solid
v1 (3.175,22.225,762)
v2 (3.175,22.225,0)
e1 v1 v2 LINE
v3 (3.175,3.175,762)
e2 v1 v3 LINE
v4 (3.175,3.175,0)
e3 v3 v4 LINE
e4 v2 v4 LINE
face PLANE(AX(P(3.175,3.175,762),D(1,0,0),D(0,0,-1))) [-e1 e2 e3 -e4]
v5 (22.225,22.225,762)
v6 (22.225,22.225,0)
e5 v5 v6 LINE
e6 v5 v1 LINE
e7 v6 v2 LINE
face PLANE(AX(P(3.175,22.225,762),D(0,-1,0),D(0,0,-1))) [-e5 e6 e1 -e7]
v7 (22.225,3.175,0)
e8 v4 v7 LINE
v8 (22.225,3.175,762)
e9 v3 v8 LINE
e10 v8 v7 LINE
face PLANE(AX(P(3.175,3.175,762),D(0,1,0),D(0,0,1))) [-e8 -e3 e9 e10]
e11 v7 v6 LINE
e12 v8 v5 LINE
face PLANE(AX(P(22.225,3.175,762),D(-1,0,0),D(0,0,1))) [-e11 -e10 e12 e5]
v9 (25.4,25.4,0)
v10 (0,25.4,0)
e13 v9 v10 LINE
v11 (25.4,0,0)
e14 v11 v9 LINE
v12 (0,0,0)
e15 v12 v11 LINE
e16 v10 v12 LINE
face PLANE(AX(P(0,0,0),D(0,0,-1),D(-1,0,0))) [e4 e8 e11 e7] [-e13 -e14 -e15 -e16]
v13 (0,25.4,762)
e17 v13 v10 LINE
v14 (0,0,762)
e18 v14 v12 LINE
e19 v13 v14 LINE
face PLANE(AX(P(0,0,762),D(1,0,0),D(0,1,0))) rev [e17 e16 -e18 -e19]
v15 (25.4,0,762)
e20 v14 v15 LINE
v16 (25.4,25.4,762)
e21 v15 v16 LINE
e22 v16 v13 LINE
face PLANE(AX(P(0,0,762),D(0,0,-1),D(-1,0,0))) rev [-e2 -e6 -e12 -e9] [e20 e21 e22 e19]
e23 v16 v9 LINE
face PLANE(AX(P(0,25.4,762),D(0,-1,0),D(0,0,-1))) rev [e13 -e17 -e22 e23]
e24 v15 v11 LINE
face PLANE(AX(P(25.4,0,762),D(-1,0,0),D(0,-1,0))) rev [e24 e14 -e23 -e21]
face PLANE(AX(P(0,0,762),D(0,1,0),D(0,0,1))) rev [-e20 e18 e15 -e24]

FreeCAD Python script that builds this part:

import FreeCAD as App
import Part
import Sketcher
Q = App.Units.Quantity


def add_polygon(sketch, points):
    """Adds a closed chain of lines whose ends are joined by coincident constraints."""
    first, n = sketch.GeometryCount, len(points)
    for a, b in zip(points, points[1:] + points[:1]):
        sketch.addGeometry(Part.LineSegment(App.Vector(*a, 0), App.Vector(*b, 0)), False)
    for i in range(n):
        sketch.addConstraint(Sketcher.Constraint("Coincident", first + i, 2, first + (i + 1) % n, 1))

doc = App.newDocument("Part")
body = doc.addObject("PartDesign::Body", "Body")

# Sketch on XY plane
sketch1 = body.newObject("Sketcher::SketchObject", "Sketch")
sketch1.AttachmentSupport = (doc.getObject("XY_Plane"), [""])
sketch1.MapMode = "FlatFace"
add_polygon(sketch1, [(0, 25.4), (0, 0), (25.4, 0), (25.4, 25.4)])  # lines 0-3
add_polygon(sketch1, [(22.225, 3.175), (3.175, 3.175), (3.175, 22.225), (22.225, 22.225)])  # lines 4-7
sketch1.addConstraint([
    Sketcher.Constraint("Vertical", 0),
    Sketcher.Constraint("Horizontal", 1),
    Sketcher.Constraint("Vertical", 2),
    Sketcher.Constraint("Horizontal", 3),
    Sketcher.Constraint("Horizontal", 4),
    Sketcher.Constraint("Vertical", 5),
    Sketcher.Constraint("Horizontal", 6),
    Sketcher.Constraint("Vertical", 7),
    Sketcher.Constraint("Coincident", 0, 2, -1, 1),
    Sketcher.Constraint("Equal", 3, 0),
    Sketcher.Constraint("Equal", 6, 5),
    Sketcher.Constraint("DistanceX", 1, 1, 1, 2, Q("1 in")),
    Sketcher.Constraint("DistanceX", 4, 2, 4, 1, Q("0.75 in")),
    Sketcher.Constraint("DistanceX", -1, 1, 4, 2, Q("0.125 in")),
    Sketcher.Constraint("DistanceY", -1, 1, 4, 2, Q("0.125 in")),
])
pad1 = body.newObject("PartDesign::Pad", "Pad")
pad1.Profile = sketch1
pad1.Length = Q("30 in")

doc.recompute()
